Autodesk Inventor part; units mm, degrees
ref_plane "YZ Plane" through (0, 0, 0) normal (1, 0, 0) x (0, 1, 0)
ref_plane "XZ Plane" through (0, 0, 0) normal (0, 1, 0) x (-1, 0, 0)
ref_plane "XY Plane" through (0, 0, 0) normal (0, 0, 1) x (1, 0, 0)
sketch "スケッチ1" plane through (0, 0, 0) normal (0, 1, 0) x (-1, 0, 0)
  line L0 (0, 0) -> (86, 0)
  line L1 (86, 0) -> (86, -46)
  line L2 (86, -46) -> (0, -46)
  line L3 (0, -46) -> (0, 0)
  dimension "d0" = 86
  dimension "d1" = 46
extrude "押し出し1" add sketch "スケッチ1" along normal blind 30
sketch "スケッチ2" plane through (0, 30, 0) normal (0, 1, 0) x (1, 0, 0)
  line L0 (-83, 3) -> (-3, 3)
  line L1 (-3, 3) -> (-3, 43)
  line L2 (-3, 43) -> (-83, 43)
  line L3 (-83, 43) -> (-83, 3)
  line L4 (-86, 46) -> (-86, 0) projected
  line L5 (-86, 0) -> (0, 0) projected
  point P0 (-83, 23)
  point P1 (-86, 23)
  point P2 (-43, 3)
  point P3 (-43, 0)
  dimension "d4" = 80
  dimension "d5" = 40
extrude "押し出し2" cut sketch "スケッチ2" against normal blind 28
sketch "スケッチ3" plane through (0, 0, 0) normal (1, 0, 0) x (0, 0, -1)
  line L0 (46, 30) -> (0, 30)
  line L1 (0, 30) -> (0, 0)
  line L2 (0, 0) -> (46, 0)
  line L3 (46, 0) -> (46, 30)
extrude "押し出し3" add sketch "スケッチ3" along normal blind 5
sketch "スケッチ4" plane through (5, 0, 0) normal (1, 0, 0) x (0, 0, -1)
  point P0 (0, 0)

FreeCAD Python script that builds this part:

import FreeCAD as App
import Part
import Sketcher
from FreeCAD import Vector
Q = App.Units.Quantity


def add_polygon(sketch, points):
    """Adds a closed chain of lines whose ends are joined by coincident constraints."""
    first, n = sketch.GeometryCount, len(points)
    for a, b in zip(points, points[1:] + points[:1]):
        sketch.addGeometry(Part.LineSegment(App.Vector(*a, 0), App.Vector(*b, 0)), False)
    for i in range(n):
        sketch.addConstraint(Sketcher.Constraint("Coincident", first + i, 2, first + (i + 1) % n, 1))

doc = App.newDocument("Part")
body = doc.addObject("PartDesign::Body", "Body")

sketch1 = doc.addObject("Sketcher::SketchObject", "Sketch")
body.addObject(sketch1)
sketch1.AttachmentSupport = (doc.XZ_Plane, [""])
sketch1.MapMode = "FlatFace"
add_polygon(sketch1, [(-86, 0), (0, 0), (0, -46), (-86, -46)])
sketch1.addConstraint(Sketcher.Constraint("Horizontal", 0))
sketch1.addConstraint(Sketcher.Constraint("Vertical", 1))
sketch1.addConstraint(Sketcher.Constraint("Horizontal", 2))
sketch1.addConstraint(Sketcher.Constraint("Vertical", 3))
sketch1.addConstraint(Sketcher.Constraint("Coincident", 0, 2, -1, 1))
sketch1.addConstraint(Sketcher.Constraint("DistanceX", 0, 1, 0, 2, Q("86 mm")))
sketch1.addConstraint(Sketcher.Constraint("DistanceY", 1, 2, 1, 1, Q("46 mm")))
pad1 = doc.addObject("PartDesign::Pad", "Pad")
body.addObject(pad1)
pad1.Profile = sketch1
pad1.Length = 30
pad1.Reversed = True

sketch2 = doc.addObject("Sketcher::SketchObject", "Sketch001")
body.addObject(sketch2)
sketch2.AttachmentSupport = (doc.XZ_Plane, [""])
sketch2.MapMode = "FlatFace"
sketch2.AttachmentOffset = App.Placement(Vector(0, 0, -30), App.Rotation())
add_polygon(sketch2, [(-83, -43), (-83, -3), (-3, -3), (-3, -43)])
sketch2.addConstraint(Sketcher.Constraint("Vertical", 0))
sketch2.addConstraint(Sketcher.Constraint("Horizontal", 1))
sketch2.addConstraint(Sketcher.Constraint("Vertical", 2))
sketch2.addConstraint(Sketcher.Constraint("Horizontal", 3))
sketch2.addConstraint(Sketcher.Constraint("DistanceX", 1, 1, 1, 2, Q("80 mm")))
sketch2.addConstraint(Sketcher.Constraint("DistanceY", 0, 1, 0, 2, Q("40 mm")))
sketch2.addConstraint(Sketcher.Constraint("DistanceX", 0, 2, -1, 1, Q("83 mm")))
sketch2.addConstraint(Sketcher.Constraint("DistanceY", 0, 2, -1, 1, Q("3 mm")))
pocket1 = doc.addObject("PartDesign::Pocket", "Pocket")
body.addObject(pocket1)
pocket1.Profile = sketch2
pocket1.Length = 28
pocket1.Reversed = True

sketch3 = doc.addObject("Sketcher::SketchObject", "Sketch002")
body.addObject(sketch3)
sketch3.AttachmentSupport = (doc.YZ_Plane, [""])
sketch3.MapMode = "FlatFace"
add_polygon(sketch3, [(0, -46), (30, -46), (30, 0), (0, 0)])
sketch3.addConstraint(Sketcher.Constraint("Horizontal", 0))
sketch3.addConstraint(Sketcher.Constraint("Vertical", 1))
sketch3.addConstraint(Sketcher.Constraint("Horizontal", 2))
sketch3.addConstraint(Sketcher.Constraint("Vertical", 3))
sketch3.addConstraint(Sketcher.Constraint("Coincident", 2, 2, -1, 1))
sketch3.addConstraint(Sketcher.Constraint("DistanceX", 0, 1, 0, 2, Q("30 mm")))
sketch3.addConstraint(Sketcher.Constraint("DistanceY", 1, 1, 1, 2, Q("46 mm")))
pad2 = doc.addObject("PartDesign::Pad", "Pad001")
body.addObject(pad2)
pad2.Profile = sketch3
pad2.Length = 5

doc.recompute()
